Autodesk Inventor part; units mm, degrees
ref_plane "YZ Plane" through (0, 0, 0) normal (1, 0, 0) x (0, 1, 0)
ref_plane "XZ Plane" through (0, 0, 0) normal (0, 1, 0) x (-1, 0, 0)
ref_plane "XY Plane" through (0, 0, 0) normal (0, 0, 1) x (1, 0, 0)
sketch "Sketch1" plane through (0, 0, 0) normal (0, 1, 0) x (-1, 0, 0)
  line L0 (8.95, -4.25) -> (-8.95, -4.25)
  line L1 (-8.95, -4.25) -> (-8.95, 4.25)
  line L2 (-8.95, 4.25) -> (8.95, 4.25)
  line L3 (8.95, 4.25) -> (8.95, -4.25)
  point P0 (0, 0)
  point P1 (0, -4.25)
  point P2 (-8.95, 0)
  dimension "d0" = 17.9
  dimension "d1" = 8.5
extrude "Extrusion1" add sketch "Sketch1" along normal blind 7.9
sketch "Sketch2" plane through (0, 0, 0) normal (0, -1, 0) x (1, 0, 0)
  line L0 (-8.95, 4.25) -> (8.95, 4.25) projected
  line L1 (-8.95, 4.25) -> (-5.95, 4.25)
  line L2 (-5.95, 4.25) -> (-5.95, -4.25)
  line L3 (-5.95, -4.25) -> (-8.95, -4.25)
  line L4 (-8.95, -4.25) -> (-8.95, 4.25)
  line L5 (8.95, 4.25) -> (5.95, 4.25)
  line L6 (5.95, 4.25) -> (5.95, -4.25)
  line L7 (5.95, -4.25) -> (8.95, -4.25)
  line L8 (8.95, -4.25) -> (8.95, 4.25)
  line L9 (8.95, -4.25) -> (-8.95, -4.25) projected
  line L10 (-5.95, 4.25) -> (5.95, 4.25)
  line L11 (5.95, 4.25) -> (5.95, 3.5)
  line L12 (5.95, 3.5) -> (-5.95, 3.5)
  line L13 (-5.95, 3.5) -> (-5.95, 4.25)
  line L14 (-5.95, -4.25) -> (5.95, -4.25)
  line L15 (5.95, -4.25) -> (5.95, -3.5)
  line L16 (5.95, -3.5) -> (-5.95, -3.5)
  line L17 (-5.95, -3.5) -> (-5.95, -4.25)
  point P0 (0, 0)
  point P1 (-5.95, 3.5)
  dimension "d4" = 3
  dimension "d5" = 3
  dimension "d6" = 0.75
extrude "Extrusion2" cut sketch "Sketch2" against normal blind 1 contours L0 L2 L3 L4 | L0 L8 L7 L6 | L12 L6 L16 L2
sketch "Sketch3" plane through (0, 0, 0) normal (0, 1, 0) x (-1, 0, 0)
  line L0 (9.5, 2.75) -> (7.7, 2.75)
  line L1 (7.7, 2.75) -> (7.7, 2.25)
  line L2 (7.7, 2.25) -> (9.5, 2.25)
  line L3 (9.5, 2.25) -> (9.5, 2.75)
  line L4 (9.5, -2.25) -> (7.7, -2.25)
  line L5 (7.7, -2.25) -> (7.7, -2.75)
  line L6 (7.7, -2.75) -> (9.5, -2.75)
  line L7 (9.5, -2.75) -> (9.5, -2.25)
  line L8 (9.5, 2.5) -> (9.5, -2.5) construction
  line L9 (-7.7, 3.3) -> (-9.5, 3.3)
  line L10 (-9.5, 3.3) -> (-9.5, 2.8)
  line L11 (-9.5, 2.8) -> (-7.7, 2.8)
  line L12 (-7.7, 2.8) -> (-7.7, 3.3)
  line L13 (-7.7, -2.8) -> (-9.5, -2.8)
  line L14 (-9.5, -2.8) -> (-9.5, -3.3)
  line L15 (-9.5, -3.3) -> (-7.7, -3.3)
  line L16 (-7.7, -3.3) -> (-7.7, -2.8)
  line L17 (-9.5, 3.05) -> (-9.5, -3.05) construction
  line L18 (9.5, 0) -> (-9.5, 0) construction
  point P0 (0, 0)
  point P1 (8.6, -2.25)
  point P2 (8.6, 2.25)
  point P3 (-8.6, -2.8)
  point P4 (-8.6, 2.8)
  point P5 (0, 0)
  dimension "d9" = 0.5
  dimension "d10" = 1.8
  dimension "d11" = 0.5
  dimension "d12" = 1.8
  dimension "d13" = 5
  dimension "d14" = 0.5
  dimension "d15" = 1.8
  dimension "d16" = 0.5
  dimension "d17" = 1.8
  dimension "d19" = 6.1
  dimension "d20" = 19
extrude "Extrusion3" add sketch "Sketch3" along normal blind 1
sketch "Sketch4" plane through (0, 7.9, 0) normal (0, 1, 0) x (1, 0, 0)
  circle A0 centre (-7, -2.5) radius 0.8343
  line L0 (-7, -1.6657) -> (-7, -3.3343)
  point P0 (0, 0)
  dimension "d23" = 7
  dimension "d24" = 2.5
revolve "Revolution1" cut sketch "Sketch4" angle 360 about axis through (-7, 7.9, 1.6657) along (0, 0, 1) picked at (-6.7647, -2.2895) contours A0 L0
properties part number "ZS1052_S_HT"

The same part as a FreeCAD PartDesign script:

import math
import FreeCAD as App
import Part
import Sketcher

V = App.Vector
Q = App.Units.Quantity


def add_polygon(sketch, points):
    """Adds a closed chain of lines whose ends are joined by coincident constraints."""
    first, n = sketch.GeometryCount, len(points)
    for a, b in zip(points, points[1:] + points[:1]):
        sketch.addGeometry(Part.LineSegment(App.Vector(*a, 0), App.Vector(*b, 0)), False)
    for i in range(n):
        sketch.addConstraint(Sketcher.Constraint("Coincident", first + i, 2, first + (i + 1) % n, 1))

doc = App.newDocument("Part")
body = doc.addObject("PartDesign::Body", "Body")

# Sketch on XZ plane
sketch1 = body.newObject("Sketcher::SketchObject", "Sketch")
sketch1.AttachmentSupport = (doc.getObject("XZ_Plane"), [""])
sketch1.MapMode = "FlatFace"
add_polygon(sketch1, [(9, -4), (-9, -4), (-9, 4), (9, 4)])  # lines 0-3
sketch1.addConstraint([
    Sketcher.Constraint("Horizontal", 0),
    Sketcher.Constraint("Vertical", 1),
    Sketcher.Constraint("Horizontal", 2),
    Sketcher.Constraint("Vertical", 3),
    Sketcher.Constraint("Symmetric", 0, 2, 2, 2, -1, 1),
    Sketcher.Constraint("DistanceX", 0, 2, 0, 1, Q("17.9 mm")),
    Sketcher.Constraint("DistanceY", 1, 1, 1, 2, Q("8.5 mm")),
])
pad1 = body.newObject("PartDesign::Pad", "Pad")
pad1.Profile = sketch1
pad1.Length = 7.9
pad1.Reversed = True

# Sketch on XZ plane
sketch2 = body.newObject("Sketcher::SketchObject", "Sketch001")
sketch2.AttachmentSupport = (doc.getObject("XZ_Plane"), [""])
sketch2.MapMode = "FlatFace"
add_polygon(sketch2, [(-6, 4.2), (-8.9, 4.2), (-8.9, -4.2), (-6, -4.2), (-6, -3.5), (6, -3.5), (6, -4.2), (8.9, -4.2), (8.9, 4.2), (6, 4.2), (6, 3.5), (-6, 3.5)])  # lines 0-11
sketch2.addConstraint([
    Sketcher.Constraint("Horizontal", 0),
    Sketcher.Constraint("Vertical", 1),
    Sketcher.Constraint("Horizontal", 2),
    Sketcher.Constraint("Vertical", 3),
    Sketcher.Constraint("Horizontal", 4),
    Sketcher.Constraint("Vertical", 5),
    Sketcher.Constraint("Horizontal", 6),
    Sketcher.Constraint("Vertical", 7),
    Sketcher.Constraint("Horizontal", 8),
    Sketcher.Constraint("Vertical", 9),
    Sketcher.Constraint("Horizontal", 10),
    Sketcher.Constraint("Vertical", 11),
    Sketcher.Constraint("Symmetric", 0, 2, 6, 2, -1, 1),
    Sketcher.Constraint("Symmetric", 2, 2, 8, 2, -1, 1),
    Sketcher.Constraint("Symmetric", 4, 2, 10, 2, -1, 1),
    Sketcher.Constraint("Symmetric", 2, 2, 5, 2, -2),
    Sketcher.Constraint("DistanceX", 0, 2, 0, 1, Q("3 mm")),
    Sketcher.Constraint("DistanceY", 3, 1, 3, 2, Q("0.75 mm")),
    Sketcher.Constraint("DistanceX", 4, 1, 4, 2, Q("11.9 mm")),
    Sketcher.Constraint("DistanceY", 1, 2, 1, 1, Q("8.5 mm")),
])
pocket1 = body.newObject("PartDesign::Pocket", "Pocket")
pocket1.Profile = sketch2
pocket1.Length = 1

# Sketch on XZ plane
sketch3 = body.newObject("Sketcher::SketchObject", "Sketch002")
sketch3.AttachmentSupport = (doc.getObject("XZ_Plane"), [""])
sketch3.MapMode = "FlatFace"
add_polygon(sketch3, [(-9.5, 2.2), (-9.5, 2.8), (-7.7, 2.8), (-7.7, 2.2)])  # lines 0-3
add_polygon(sketch3, [(-9.5, -2.8), (-9.5, -2.2), (-7.7, -2.2), (-7.7, -2.8)])  # lines 4-7
add_polygon(sketch3, [(7.7, 2.8), (7.7, 3.3), (9.5, 3.3), (9.5, 2.8)])  # lines 8-11
add_polygon(sketch3, [(7.7, -3.3), (7.7, -2.8), (9.5, -2.8), (9.5, -3.3)])  # lines 12-15
sketch3.addConstraint([
    Sketcher.Constraint("Vertical", 0),
    Sketcher.Constraint("Horizontal", 1),
    Sketcher.Constraint("Vertical", 2),
    Sketcher.Constraint("Horizontal", 3),
    Sketcher.Constraint("Vertical", 4),
    Sketcher.Constraint("Horizontal", 5),
    Sketcher.Constraint("Vertical", 6),
    Sketcher.Constraint("Horizontal", 7),
    Sketcher.Constraint("Vertical", 8),
    Sketcher.Constraint("Horizontal", 9),
    Sketcher.Constraint("Vertical", 10),
    Sketcher.Constraint("Horizontal", 11),
    Sketcher.Constraint("Vertical", 12),
    Sketcher.Constraint("Horizontal", 13),
    Sketcher.Constraint("Vertical", 14),
    Sketcher.Constraint("Horizontal", 15),
    Sketcher.Constraint("Symmetric", 3, 2, 4, 2, -1),
    Sketcher.Constraint("Symmetric", 1, 2, 6, 2, -1),
    Sketcher.Constraint("Symmetric", 11, 2, 12, 2, -1),
    Sketcher.Constraint("Symmetric", 9, 2, 14, 2, -1),
    Sketcher.Constraint("Equal", 7, 9),
    Sketcher.Constraint("Equal", 6, 8),
    Sketcher.Constraint("DistanceX", 1, 1, 1, 2, Q("1.8 mm")),
    Sketcher.Constraint("DistanceY", 0, 1, 0, 2, Q("0.5 mm")),
    Sketcher.Constraint("DistanceY", 4, 2, 0, 2, Q("5 mm")),
    Sketcher.Constraint("DistanceY", 12, 2, 8, 2, Q("6.1 mm")),
    Sketcher.Constraint("DistanceX", 0, 2, -1, 1, Q("9.5 mm")),
    Sketcher.Constraint("DistanceX", -1, 1, 8, 2, Q("7.7 mm")),
])
pad2 = body.newObject("PartDesign::Pad", "Pad001")
pad2.Profile = sketch3
pad2.Length = 1
pad2.Reversed = True

# Sketch on XZ plane
sketch4 = body.newObject("Sketcher::SketchObject", "Sketch003")
sketch4.AttachmentSupport = (doc.getObject("XZ_Plane"), [""])
sketch4.MapMode = "FlatFace"
sketch4.AttachmentOffset = App.Placement(V(0, 0, -7.9), App.Rotation())
sketch4.addGeometry([
    Part.ArcOfCircle(Part.Circle(V(-7, 2.5, 0), V(0, 0, 1), 0.8), math.radians(-90), math.radians(90)),
    Part.LineSegment(V(-7, 1.7, 0), V(-7, 3.3, 0)),
], False)
sketch4.addGeometry(Part.LineSegment(V(-7, 1.7, 0), V(-7, 3.3, 0)), True)  # axis
sketch4.addConstraint([
    Sketcher.Constraint("Coincident", 0, 1, 1, 1),
    Sketcher.Constraint("Coincident", 1, 2, 0, 2),
    Sketcher.Constraint("Vertical", 1),
    Sketcher.Constraint("Vertical", 2),
    Sketcher.Constraint("Coincident", 2, 1, 0, 1),
    Sketcher.Constraint("Equal", 1, 2),
    Sketcher.Constraint("DistanceX", 0, 3, -1, 1, Q("7 mm")),
    Sketcher.Constraint("DistanceX", 0, 1, -1, 1, Q("7 mm")),
    Sketcher.Constraint("DistanceY", -1, 1, 0, 3, Q("2.5 mm")),
    Sketcher.Constraint("Radius", 0, Q("0.8343 mm")),
])
groove = body.newObject("PartDesign::Groove", "Groove")
groove.Profile = sketch4
groove.ReferenceAxis = (sketch4, ["Axis0"])
groove.Angle = 360

doc.recompute()
